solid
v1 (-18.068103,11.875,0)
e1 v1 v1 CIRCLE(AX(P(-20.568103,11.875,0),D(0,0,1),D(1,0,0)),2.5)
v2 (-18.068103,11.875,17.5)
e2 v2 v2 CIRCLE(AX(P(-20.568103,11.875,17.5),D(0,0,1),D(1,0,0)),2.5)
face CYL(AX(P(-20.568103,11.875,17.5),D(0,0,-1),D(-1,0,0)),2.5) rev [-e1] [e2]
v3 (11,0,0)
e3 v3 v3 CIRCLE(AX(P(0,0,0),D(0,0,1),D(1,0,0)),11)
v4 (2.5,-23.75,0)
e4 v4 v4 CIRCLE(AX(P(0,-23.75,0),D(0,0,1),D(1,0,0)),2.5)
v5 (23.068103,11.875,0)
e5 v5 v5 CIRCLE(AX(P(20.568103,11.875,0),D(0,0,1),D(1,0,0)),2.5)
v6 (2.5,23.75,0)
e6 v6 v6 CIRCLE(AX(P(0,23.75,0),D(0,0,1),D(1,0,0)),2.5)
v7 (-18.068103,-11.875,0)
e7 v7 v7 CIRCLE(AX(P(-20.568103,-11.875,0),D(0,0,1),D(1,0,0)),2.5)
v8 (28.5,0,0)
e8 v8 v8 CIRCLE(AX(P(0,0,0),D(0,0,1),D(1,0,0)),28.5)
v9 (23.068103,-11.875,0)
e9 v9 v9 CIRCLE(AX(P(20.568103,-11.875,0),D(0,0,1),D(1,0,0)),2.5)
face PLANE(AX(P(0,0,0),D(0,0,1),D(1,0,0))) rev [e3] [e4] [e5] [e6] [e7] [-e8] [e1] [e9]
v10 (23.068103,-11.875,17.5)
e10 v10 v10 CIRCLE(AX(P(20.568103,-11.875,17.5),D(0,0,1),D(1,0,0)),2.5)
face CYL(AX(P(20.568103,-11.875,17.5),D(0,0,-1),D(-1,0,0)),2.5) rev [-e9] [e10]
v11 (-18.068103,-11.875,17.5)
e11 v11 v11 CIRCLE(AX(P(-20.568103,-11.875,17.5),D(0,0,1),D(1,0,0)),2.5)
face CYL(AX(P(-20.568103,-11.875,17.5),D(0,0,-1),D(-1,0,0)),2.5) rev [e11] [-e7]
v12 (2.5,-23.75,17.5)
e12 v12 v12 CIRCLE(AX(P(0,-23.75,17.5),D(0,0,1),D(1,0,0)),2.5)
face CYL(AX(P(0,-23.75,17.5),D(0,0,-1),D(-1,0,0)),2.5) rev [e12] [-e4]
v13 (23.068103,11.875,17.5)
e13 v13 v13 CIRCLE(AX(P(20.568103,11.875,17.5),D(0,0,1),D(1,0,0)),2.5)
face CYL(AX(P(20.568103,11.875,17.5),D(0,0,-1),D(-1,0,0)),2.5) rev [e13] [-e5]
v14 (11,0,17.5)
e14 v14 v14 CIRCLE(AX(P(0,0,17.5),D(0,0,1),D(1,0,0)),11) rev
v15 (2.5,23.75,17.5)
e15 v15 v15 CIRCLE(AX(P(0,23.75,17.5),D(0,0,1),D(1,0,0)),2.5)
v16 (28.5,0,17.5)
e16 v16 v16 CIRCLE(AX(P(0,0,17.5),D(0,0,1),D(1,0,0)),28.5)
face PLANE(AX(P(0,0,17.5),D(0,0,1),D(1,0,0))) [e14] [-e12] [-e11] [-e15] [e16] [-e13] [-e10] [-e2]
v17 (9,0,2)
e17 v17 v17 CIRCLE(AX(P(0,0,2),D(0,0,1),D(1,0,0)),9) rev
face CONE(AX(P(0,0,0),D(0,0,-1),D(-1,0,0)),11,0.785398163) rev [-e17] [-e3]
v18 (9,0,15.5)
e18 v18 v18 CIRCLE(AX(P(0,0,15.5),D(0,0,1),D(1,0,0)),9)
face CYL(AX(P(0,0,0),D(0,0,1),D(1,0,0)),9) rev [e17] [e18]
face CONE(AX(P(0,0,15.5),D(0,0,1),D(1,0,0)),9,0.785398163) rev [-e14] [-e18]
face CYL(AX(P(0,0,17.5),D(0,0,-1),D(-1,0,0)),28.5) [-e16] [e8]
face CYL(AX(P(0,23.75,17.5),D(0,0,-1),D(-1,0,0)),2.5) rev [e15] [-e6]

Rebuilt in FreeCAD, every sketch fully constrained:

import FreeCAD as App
import Part
import Sketcher


def edges_at(feature, points):
    """Names of the edges that pass closest to the given points."""
    edges = feature.Shape.Edges
    near = lambda p: min(range(len(edges)), key=lambda i: edges[i].distToShape(Part.Vertex(*p))[0])
    return sorted({f"Edge{near(p) + 1}" for p in points})

doc = App.newDocument("Part")
body = doc.addObject("PartDesign::Body", "Body")

sketch1 = body.newObject("Sketcher::SketchObject", "Sketch")
sketch1.AttachmentSupport = (doc.getObject("XY_Plane"), [""])
sketch1.MapMode = "FlatFace"
sketch1.addGeometry(Part.Circle(App.Vector(0, 0, 0), App.Vector(0, 0, 1), 28.5), False)
sketch1.addGeometry(Part.Circle(App.Vector(-20.568103, -11.875, 0), App.Vector(0, 0, 1), 2.5), False)
sketch1.addGeometry(Part.Circle(App.Vector(0, -23.75, 0), App.Vector(0, 0, 1), 2.5), False)
sketch1.addGeometry(Part.Circle(App.Vector(20.568103, -11.875, 0), App.Vector(0, 0, 1), 2.5), False)
sketch1.addGeometry(Part.Circle(App.Vector(-20.568103, 11.875, 0), App.Vector(0, 0, 1), 2.5), False)
sketch1.addGeometry(Part.Circle(App.Vector(20.568103, 11.875, 0), App.Vector(0, 0, 1), 2.5), False)
sketch1.addGeometry(Part.Circle(App.Vector(0, 23.75, 0), App.Vector(0, 0, 1), 2.5), False)
sketch1.addConstraint(Sketcher.Constraint("Coincident", 0, 3, -1, 1))
sketch1.addConstraint(Sketcher.Constraint("Equal", 1, 2))
sketch1.addConstraint(Sketcher.Constraint("Equal", 2, 3))
sketch1.addConstraint(Sketcher.Constraint("Equal", 3, 4))
sketch1.addConstraint(Sketcher.Constraint("Equal", 4, 5))
sketch1.addConstraint(Sketcher.Constraint("Equal", 5, 6))
sketch1.addConstraint(Sketcher.Constraint("Symmetric", 3, 3, 4, 3, -1, 1))
sketch1.addConstraint(Sketcher.Constraint("Symmetric", 1, 3, 5, 3, -1, 1))
sketch1.addConstraint(Sketcher.Constraint("Symmetric", 2, 3, 6, 3, -1, 1))
sketch1.addConstraint(Sketcher.Constraint("Symmetric", 1, 3, 3, 3, -2))
sketch1.addConstraint(Sketcher.Constraint("PointOnObject", 2, 3, -2))
sketch1.addConstraint(Sketcher.Constraint("Diameter", 0, 57.0))
sketch1.addConstraint(Sketcher.Constraint("Diameter", 1, 5.0))
sketch1.addConstraint(Sketcher.Constraint("DistanceY", 2, 3, -1, 1, 23.75))
sketch1.addConstraint(Sketcher.Constraint("DistanceY", 1, 3, 4, 3, 23.75))
sketch1.addConstraint(Sketcher.Constraint("DistanceX", 1, 3, -1, 1, 20.568103))
pad1 = body.newObject("PartDesign::Pad", "Pad")
pad1.Profile = sketch1
pad1.Length = 17.5

sketch2 = body.newObject("Sketcher::SketchObject", "Sketch001")
sketch2.AttachmentSupport = (doc.getObject("XY_Plane"), [""])
sketch2.MapMode = "FlatFace"
sketch2.AttachmentOffset = App.Placement(App.Vector(0, 0, 17.5), App.Rotation())
sketch2.addGeometry(Part.Circle(App.Vector(0, 0, 0), App.Vector(0, 0, 1), 9), False)
sketch2.addConstraint(Sketcher.Constraint("Coincident", 0, 3, -1, 1))
sketch2.addConstraint(Sketcher.Constraint("Diameter", 0, 18.0))
pocket1 = body.newObject("PartDesign::Pocket", "Pocket")
pocket1.Profile = sketch2
pocket1.Type = "ThroughAll"
doc.recompute()

chamfer = body.newObject("PartDesign::Chamfer", "Chamfer")
chamfer.Base = (pocket1, edges_at(pocket1, [(-9, 0, 0), (-9, 0, 17.5)]))
chamfer.Size = 2

doc.recompute()
